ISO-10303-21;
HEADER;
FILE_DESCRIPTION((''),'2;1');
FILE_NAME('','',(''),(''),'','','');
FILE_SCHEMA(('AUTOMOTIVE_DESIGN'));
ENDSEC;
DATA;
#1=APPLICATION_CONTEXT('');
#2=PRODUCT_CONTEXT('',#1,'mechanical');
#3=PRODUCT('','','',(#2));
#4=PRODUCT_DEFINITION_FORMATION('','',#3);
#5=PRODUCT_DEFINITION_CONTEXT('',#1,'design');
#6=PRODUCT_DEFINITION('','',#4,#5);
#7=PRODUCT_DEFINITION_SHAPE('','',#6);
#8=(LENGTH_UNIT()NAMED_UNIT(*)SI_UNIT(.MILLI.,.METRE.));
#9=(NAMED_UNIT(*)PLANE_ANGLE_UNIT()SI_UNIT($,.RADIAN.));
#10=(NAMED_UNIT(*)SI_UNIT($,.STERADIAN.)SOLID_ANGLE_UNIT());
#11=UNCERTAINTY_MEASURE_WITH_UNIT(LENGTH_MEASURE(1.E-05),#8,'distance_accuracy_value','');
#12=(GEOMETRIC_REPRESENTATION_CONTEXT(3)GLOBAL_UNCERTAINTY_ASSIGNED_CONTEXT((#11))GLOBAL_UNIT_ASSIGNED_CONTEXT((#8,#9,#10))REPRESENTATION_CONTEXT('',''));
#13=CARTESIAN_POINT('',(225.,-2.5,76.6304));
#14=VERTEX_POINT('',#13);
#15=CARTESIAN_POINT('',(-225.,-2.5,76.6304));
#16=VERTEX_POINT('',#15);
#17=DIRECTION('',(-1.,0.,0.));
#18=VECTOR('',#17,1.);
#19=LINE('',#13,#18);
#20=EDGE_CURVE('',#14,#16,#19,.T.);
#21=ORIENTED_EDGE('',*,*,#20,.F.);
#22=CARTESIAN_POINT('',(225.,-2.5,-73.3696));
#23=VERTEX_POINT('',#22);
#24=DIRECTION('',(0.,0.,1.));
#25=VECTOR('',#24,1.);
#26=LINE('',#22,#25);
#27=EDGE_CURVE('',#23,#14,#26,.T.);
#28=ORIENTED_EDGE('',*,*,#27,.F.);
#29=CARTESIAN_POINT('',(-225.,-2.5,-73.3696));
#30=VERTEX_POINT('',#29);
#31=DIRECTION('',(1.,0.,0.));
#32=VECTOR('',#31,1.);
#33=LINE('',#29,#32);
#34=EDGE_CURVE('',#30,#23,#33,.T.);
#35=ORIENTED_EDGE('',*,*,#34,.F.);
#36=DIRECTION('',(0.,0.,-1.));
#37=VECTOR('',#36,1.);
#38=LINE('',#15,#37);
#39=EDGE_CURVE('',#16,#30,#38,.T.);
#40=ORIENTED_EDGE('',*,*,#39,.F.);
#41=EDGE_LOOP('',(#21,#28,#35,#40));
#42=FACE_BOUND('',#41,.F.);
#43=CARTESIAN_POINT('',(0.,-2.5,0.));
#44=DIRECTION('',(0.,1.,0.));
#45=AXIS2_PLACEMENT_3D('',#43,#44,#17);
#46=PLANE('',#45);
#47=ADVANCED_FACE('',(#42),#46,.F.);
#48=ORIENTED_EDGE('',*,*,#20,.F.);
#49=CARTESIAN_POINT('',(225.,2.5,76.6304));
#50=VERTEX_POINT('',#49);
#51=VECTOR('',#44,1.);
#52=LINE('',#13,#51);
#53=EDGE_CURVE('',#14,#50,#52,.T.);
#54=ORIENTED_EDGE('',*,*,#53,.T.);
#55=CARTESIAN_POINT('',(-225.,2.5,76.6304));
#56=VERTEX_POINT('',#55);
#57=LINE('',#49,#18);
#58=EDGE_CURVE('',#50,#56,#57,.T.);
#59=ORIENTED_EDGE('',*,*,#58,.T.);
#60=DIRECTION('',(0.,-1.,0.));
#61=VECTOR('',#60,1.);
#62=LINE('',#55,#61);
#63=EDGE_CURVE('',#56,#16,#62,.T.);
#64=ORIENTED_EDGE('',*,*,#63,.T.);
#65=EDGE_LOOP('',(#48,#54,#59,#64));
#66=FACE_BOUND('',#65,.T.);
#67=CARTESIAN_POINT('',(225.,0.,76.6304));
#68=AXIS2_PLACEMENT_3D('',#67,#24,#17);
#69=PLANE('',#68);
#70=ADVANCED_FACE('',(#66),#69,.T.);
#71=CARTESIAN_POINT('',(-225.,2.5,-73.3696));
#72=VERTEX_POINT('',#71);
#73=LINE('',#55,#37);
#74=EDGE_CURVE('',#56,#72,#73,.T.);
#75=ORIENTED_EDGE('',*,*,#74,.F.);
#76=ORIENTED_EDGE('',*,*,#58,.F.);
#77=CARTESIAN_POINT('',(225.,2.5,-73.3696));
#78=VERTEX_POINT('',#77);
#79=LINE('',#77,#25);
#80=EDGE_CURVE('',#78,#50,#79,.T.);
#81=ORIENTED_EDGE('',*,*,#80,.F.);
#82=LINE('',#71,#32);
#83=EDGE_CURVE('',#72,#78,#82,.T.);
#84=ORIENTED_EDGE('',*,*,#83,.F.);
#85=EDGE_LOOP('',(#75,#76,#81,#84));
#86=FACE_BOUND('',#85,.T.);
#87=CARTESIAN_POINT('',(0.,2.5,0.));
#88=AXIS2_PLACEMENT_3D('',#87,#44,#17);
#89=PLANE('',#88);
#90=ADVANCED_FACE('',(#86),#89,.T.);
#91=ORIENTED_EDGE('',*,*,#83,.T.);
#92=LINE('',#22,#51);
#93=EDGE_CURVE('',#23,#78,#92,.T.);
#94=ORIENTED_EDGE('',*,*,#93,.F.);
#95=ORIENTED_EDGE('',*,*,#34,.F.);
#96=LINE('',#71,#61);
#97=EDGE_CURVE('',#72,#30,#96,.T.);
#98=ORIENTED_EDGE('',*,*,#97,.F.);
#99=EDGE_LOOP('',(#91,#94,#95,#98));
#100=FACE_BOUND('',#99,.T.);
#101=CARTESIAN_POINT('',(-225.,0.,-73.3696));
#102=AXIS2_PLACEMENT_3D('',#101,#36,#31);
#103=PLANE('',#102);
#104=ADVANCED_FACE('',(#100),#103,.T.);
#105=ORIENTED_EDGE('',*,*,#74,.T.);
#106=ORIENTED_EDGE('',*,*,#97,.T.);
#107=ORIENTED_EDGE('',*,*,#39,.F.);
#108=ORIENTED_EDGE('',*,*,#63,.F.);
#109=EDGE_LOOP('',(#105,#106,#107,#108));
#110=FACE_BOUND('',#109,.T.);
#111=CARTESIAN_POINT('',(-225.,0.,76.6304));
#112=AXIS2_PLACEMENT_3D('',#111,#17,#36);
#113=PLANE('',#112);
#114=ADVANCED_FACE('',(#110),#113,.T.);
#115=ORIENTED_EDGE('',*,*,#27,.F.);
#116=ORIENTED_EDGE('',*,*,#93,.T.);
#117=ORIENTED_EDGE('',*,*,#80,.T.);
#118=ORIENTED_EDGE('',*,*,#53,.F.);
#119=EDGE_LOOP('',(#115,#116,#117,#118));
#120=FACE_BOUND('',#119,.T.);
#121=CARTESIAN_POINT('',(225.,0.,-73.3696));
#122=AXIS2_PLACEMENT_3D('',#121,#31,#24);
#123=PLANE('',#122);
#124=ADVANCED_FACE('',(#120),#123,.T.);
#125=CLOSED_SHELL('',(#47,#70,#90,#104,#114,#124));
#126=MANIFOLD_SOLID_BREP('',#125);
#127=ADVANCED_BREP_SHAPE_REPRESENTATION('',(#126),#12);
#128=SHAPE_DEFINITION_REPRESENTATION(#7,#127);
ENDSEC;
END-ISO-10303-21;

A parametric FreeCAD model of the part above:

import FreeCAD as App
import Part
import Sketcher
from FreeCAD import Vector


def add_polygon(sketch, points):
    """Adds a closed chain of lines whose ends are joined by coincident constraints."""
    first, n = sketch.GeometryCount, len(points)
    for a, b in zip(points, points[1:] + points[:1]):
        sketch.addGeometry(Part.LineSegment(App.Vector(*a, 0), App.Vector(*b, 0)), False)
    for i in range(n):
        sketch.addConstraint(Sketcher.Constraint("Coincident", first + i, 2, first + (i + 1) % n, 1))

doc = App.newDocument("Part")
body = doc.addObject("PartDesign::Body", "Body")

sketch1 = body.newObject("Sketcher::SketchObject", "Sketch")
sketch1.AttachmentSupport = (doc.getObject("XZ_Plane"), [""])
sketch1.MapMode = "FlatFace"
add_polygon(sketch1, [(-225, 77), (225, 77), (225, -73), (-225, -73)])
sketch1.addConstraint([
    Sketcher.Constraint("Horizontal", 0),
    Sketcher.Constraint("Vertical", 1),
    Sketcher.Constraint("Horizontal", 2),
    Sketcher.Constraint("Vertical", 3),
    Sketcher.Constraint("DistanceX", 0, 1, 0, 2, 450.0),
    Sketcher.Constraint("DistanceY", 1, 2, 1, 1, 150.0),
    Sketcher.Constraint("DistanceX", -1, 1, 0, 2, 225.0),
    Sketcher.Constraint("DistanceY", -1, 1, 0, 2, 76.6304),
])
pad1 = body.newObject("PartDesign::Pad", "Pad")
pad1.Profile = sketch1
pad1.Length = 5
pad1.Midplane = True

doc.recompute()
